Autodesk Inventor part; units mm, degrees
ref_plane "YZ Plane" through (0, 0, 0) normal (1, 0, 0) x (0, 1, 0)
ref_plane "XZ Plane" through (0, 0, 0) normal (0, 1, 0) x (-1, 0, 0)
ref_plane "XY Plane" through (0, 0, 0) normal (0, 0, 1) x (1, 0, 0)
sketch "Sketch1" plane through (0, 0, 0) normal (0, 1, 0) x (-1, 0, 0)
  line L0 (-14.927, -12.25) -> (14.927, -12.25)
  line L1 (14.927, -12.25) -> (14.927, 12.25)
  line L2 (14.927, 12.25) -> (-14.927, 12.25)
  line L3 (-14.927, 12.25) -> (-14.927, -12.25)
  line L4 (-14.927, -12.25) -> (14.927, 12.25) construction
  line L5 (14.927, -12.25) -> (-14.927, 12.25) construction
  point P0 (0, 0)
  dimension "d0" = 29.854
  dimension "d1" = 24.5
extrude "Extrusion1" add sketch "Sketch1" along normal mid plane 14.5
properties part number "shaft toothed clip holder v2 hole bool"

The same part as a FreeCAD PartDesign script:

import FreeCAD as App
import Part
import Sketcher

V = App.Vector

doc = App.newDocument("Part")
body = doc.addObject("PartDesign::Body", "Body")

# Sketch on XZ plane
sketch1 = doc.addObject("Sketcher::SketchObject", "Sketch")
body.addObject(sketch1)
sketch1.AttachmentSupport = (doc.XZ_Plane, [""])
sketch1.MapMode = "FlatFace"
sketch1.addGeometry([
    Part.LineSegment(V(14.927, 12.25, 0), V(14.927, -12.25, 0)),
    Part.LineSegment(V(14.927, -12.25, 0), V(-14.927, -12.25, 0)),
    Part.LineSegment(V(-14.927, -12.25, 0), V(-14.927, 12.25, 0)),
    Part.LineSegment(V(-14.927, 12.25, 0), V(14.927, 12.25, 0)),
], False)
sketch1.addConstraint([
    Sketcher.Constraint("Coincident", 0, 2, 1, 1),
    Sketcher.Constraint("Coincident", 1, 2, 2, 1),
    Sketcher.Constraint("Coincident", 2, 2, 3, 1),
    Sketcher.Constraint("Coincident", 3, 2, 0, 1),
    Sketcher.Constraint("Vertical", 0),
    Sketcher.Constraint("Horizontal", 1),
    Sketcher.Constraint("Vertical", 2),
    Sketcher.Constraint("Horizontal", 3),
    Sketcher.Constraint("Symmetric", 0, 2, 2, 2, -1, 1),
    Sketcher.Constraint("DistanceY", 0, 2, 0, 1, 24.5),
    Sketcher.Constraint("DistanceX", 1, 2, 1, 1, 29.854),
])
pad1 = doc.addObject("PartDesign::Pad", "Pad")
body.addObject(pad1)
pad1.Profile = sketch1
pad1.Length = 14.5
pad1.Midplane = True

doc.recompute()
